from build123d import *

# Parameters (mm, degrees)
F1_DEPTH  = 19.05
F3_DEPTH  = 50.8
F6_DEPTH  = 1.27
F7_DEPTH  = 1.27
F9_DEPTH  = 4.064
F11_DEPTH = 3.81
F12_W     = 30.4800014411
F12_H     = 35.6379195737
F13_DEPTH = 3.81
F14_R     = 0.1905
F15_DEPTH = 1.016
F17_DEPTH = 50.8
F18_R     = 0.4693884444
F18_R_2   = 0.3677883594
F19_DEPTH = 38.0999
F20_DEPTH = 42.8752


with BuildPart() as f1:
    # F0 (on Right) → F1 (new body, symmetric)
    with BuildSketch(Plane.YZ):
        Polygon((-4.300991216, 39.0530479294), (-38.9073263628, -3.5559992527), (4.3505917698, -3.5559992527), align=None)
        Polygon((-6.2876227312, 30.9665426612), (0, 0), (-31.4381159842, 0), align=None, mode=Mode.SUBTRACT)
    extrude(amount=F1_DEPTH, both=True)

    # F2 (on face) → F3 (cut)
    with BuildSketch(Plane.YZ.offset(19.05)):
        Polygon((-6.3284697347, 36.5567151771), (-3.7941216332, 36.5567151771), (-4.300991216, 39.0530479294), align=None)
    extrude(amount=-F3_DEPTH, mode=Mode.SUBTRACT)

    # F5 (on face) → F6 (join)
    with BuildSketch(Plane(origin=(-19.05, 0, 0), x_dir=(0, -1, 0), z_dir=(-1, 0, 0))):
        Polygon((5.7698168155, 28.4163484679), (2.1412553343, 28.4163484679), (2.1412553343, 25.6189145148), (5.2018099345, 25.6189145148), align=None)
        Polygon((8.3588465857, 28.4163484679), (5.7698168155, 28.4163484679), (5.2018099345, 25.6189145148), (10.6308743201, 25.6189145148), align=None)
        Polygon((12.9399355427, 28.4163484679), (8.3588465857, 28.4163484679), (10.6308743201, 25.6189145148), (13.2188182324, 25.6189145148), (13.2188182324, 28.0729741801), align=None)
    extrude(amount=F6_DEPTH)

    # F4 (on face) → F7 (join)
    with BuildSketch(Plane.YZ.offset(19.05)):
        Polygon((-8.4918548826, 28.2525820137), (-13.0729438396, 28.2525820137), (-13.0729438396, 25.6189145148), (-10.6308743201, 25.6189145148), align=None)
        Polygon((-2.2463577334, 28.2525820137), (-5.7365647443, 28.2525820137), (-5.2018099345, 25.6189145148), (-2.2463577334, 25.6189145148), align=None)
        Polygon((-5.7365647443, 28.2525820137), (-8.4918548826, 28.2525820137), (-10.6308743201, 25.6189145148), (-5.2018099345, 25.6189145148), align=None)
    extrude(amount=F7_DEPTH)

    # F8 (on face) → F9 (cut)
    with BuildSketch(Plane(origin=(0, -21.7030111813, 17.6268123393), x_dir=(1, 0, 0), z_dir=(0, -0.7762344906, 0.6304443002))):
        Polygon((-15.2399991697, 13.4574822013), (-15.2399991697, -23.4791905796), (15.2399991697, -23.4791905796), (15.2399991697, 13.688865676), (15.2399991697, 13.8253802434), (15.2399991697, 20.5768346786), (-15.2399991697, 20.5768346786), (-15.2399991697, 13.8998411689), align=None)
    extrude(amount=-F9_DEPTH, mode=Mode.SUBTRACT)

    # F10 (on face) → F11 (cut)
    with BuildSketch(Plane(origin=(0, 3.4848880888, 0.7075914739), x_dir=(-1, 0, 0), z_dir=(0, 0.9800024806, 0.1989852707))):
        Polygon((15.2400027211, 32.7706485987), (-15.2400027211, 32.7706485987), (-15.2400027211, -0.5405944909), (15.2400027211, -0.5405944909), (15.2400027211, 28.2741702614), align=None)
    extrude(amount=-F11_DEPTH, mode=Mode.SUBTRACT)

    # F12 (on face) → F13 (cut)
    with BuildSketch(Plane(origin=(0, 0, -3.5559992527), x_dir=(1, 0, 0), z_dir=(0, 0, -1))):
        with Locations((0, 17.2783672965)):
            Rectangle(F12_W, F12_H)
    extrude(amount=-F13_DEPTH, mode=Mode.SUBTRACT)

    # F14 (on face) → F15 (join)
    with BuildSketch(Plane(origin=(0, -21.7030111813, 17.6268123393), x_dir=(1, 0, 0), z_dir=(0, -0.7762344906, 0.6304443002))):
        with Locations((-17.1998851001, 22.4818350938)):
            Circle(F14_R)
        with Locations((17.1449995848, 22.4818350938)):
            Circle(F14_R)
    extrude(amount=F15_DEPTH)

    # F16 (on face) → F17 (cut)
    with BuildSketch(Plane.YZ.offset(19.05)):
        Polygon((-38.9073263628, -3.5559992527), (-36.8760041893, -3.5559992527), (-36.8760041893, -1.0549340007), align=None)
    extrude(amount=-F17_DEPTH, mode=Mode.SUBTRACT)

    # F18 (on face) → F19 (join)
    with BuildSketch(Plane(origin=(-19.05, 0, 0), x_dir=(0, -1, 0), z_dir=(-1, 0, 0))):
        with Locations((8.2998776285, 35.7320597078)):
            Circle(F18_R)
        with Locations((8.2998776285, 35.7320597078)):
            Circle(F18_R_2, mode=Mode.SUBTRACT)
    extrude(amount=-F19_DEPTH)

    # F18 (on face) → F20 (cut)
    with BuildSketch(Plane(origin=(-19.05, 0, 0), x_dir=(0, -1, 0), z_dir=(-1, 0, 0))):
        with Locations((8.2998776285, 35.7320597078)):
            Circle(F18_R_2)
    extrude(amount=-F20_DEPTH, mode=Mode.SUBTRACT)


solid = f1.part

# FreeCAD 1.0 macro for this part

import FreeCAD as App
import Part
import Sketcher
Q = App.Units.Quantity

doc = App.newDocument("Part")
body = doc.addObject("PartDesign::Body", "Body")

sketch1 = body.newObject("Sketcher::SketchObject", "Sketch")
sketch1.AttachmentSupport = (doc.getObject("YZ_Plane"), [""])
sketch1.MapMode = "FlatFace"
sketch1.addGeometry(Part.LineSegment(App.Vector(-4, 39, 0), App.Vector(-39, -4, 0)), False)
sketch1.addGeometry(Part.LineSegment(App.Vector(-39, -4, 0), App.Vector(4, -4, 0)), False)
sketch1.addGeometry(Part.LineSegment(App.Vector(4, -4, 0), App.Vector(-4, 39, 0)), False)
sketch1.addGeometry(Part.LineSegment(App.Vector(-31, 0, 0), App.Vector(-6, 31, 0)), False)
sketch1.addGeometry(Part.LineSegment(App.Vector(-6, 31, 0), App.Vector(0, 0, 0)), False)
sketch1.addGeometry(Part.LineSegment(App.Vector(0, 0, 0), App.Vector(-31, 0, 0)), False)
sketch1.addConstraint(Sketcher.Constraint("Coincident", 0, 2, 1, 1))
sketch1.addConstraint(Sketcher.Constraint("Coincident", 1, 2, 2, 1))
sketch1.addConstraint(Sketcher.Constraint("Coincident", 2, 2, 0, 1))
sketch1.addConstraint(Sketcher.Constraint("Coincident", 3, 2, 4, 1))
sketch1.addConstraint(Sketcher.Constraint("Coincident", 4, 2, 5, 1))
sketch1.addConstraint(Sketcher.Constraint("Coincident", 5, 2, 3, 1))
sketch1.addConstraint(Sketcher.Constraint("Horizontal", 1))
sketch1.addConstraint(Sketcher.Constraint("Horizontal", 5))
sketch1.addConstraint(Sketcher.Constraint("Coincident", 4, 2, -1, 1))
sketch1.addConstraint(Sketcher.Constraint("Parallel", 0, 3))
sketch1.addConstraint(Sketcher.Constraint("Parallel", 2, 4))
sketch1.addConstraint(Sketcher.Constraint("DistanceY", 0, 2, -1, 1, Q("0.14 in")))
sketch1.addConstraint(Sketcher.Constraint("DistanceX", 1, 1, 1, 2, Q("43.257918 mm")))
sketch1.addConstraint(Sketcher.Constraint("Distance", 0, Q("54.891979 mm")))
sketch1.addConstraint(Sketcher.Constraint("Distance", 2, Q("43.47851 mm")))
sketch1.addConstraint(Sketcher.Constraint("DistanceX", 5, 2, 5, 1, Q("31.438116 mm")))
sketch1.addConstraint(Sketcher.Constraint("DistanceX", -1, 1, 1, 2, Q("4.350592 mm")))
pad1 = body.newObject("PartDesign::Pad", "Pad")
pad1.Profile = sketch1
pad1.Length = Q("1.5 in")
pad1.Midplane = True

sketch2 = body.newObject("Sketcher::SketchObject", "Sketch001")
sketch2.AttachmentSupport = (doc.getObject("YZ_Plane"), [""])
sketch2.MapMode = "FlatFace"
sketch2.AttachmentOffset = App.Placement(App.Vector(0, 0, 0.75 * 25.4), App.Rotation())
sketch2.addGeometry(Part.LineSegment(App.Vector(-6.3, 36.6, 0), App.Vector(-3.8, 36.6, 0)), False)
sketch2.addGeometry(Part.LineSegment(App.Vector(-3.8, 36.6, 0), App.Vector(-4.3, 39.1, 0)), False)
sketch2.addGeometry(Part.LineSegment(App.Vector(-4.3, 39.1, 0), App.Vector(-6.3, 36.6, 0)), False)
sketch2.addConstraint(Sketcher.Constraint("Coincident", 0, 2, 1, 1))
sketch2.addConstraint(Sketcher.Constraint("Coincident", 1, 2, 2, 1))
sketch2.addConstraint(Sketcher.Constraint("Coincident", 2, 2, 0, 1))
sketch2.addConstraint(Sketcher.Constraint("Horizontal", 0))
sketch2.addConstraint(Sketcher.Constraint("DistanceX", 0, 1, 0, 2, Q("2.534348 mm")))
sketch2.addConstraint(Sketcher.Constraint("Distance", 1, Q("2.547272 mm")))
sketch2.addConstraint(Sketcher.Constraint("Distance", 2, Q("3.215952 mm")))
sketch2.addConstraint(Sketcher.Constraint("DistanceX", 0, 2, -1, 1, Q("3.794122 mm")))
sketch2.addConstraint(Sketcher.Constraint("DistanceY", -1, 1, 0, 2, Q("36.556715 mm")))
pocket1 = body.newObject("PartDesign::Pocket", "Pocket")
pocket1.Profile = sketch2
pocket1.Length = Q("2 in")

sketch3 = body.newObject("Sketcher::SketchObject", "Sketch002")
sketch3.AttachmentSupport = (doc.getObject("YZ_Plane"), [""])
sketch3.MapMode = "FlatFace"
sketch3.AttachmentOffset = App.Placement(App.Vector(0, 0, -0.75 * 25.4), App.Rotation())
sketch3.addGeometry(Part.LineSegment(App.Vector(-2.14, 28.42, 0), App.Vector(-2.14, 25.62, 0)), False)
sketch3.addGeometry(Part.LineSegment(App.Vector(-2.14, 25.62, 0), App.Vector(-13.22, 25.62, 0)), False)
sketch3.addGeometry(Part.LineSegment(App.Vector(-13.22, 25.62, 0), App.Vector(-13.22, 28.07, 0)), False)
sketch3.addGeometry(Part.LineSegment(App.Vector(-13.22, 28.07, 0), App.Vector(-12.94, 28.42, 0)), False)
sketch3.addGeometry(Part.LineSegment(App.Vector(-12.94, 28.42, 0), App.Vector(-2.14, 28.42, 0)), False)
sketch3.addConstraint(Sketcher.Constraint("Coincident", 0, 2, 1, 1))
sketch3.addConstraint(Sketcher.Constraint("Coincident", 1, 2, 2, 1))
sketch3.addConstraint(Sketcher.Constraint("Coincident", 2, 2, 3, 1))
sketch3.addConstraint(Sketcher.Constraint("Coincident", 3, 2, 4, 1))
sketch3.addConstraint(Sketcher.Constraint("Coincident", 4, 2, 0, 1))
sketch3.addConstraint(Sketcher.Constraint("Vertical", 0))
sketch3.addConstraint(Sketcher.Constraint("Horizontal", 1))
sketch3.addConstraint(Sketcher.Constraint("Vertical", 2))
sketch3.addConstraint(Sketcher.Constraint("Horizontal", 4))
sketch3.addConstraint(Sketcher.Constraint("DistanceX", 4, 1, 4, 2, Q("10.79868 mm")))
sketch3.addConstraint(Sketcher.Constraint("DistanceY", 2, 1, 2, 2, Q("2.45406 mm")))
sketch3.addConstraint(Sketcher.Constraint("Distance", 3, Q("0.442359 mm")))
sketch3.addConstraint(Sketcher.Constraint("DistanceX", 1, 2, 1, 1, Q("11.077563 mm")))
sketch3.addConstraint(Sketcher.Constraint("DistanceX", 1, 2, -1, 1, Q("13.218818 mm")))
sketch3.addConstraint(Sketcher.Constraint("DistanceY", -1, 1, 3, 2, Q("28.416348 mm")))
pad2 = body.newObject("PartDesign::Pad", "Pad001")
pad2.Profile = sketch3
pad2.Length = Q("0.05 in")
pad2.Reversed = True

sketch4 = body.newObject("Sketcher::SketchObject", "Sketch003")
sketch4.AttachmentSupport = (doc.getObject("YZ_Plane"), [""])
sketch4.MapMode = "FlatFace"
sketch4.AttachmentOffset = App.Placement(App.Vector(0, 0, 0.75 * 25.4), App.Rotation())
sketch4.addGeometry(Part.LineSegment(App.Vector(-13.1, 28.3, 0), App.Vector(-13.1, 25.6, 0)), False)
sketch4.addGeometry(Part.LineSegment(App.Vector(-13.1, 25.6, 0), App.Vector(-2.2, 25.6, 0)), False)
sketch4.addGeometry(Part.LineSegment(App.Vector(-2.2, 25.6, 0), App.Vector(-2.2, 28.3, 0)), False)
sketch4.addGeometry(Part.LineSegment(App.Vector(-2.2, 28.3, 0), App.Vector(-13.1, 28.3, 0)), False)
sketch4.addConstraint(Sketcher.Constraint("Coincident", 0, 2, 1, 1))
sketch4.addConstraint(Sketcher.Constraint("Coincident", 1, 2, 2, 1))
sketch4.addConstraint(Sketcher.Constraint("Coincident", 2, 2, 3, 1))
sketch4.addConstraint(Sketcher.Constraint("Coincident", 3, 2, 0, 1))
sketch4.addConstraint(Sketcher.Constraint("Vertical", 0))
sketch4.addConstraint(Sketcher.Constraint("Horizontal", 1))
sketch4.addConstraint(Sketcher.Constraint("Vertical", 2))
sketch4.addConstraint(Sketcher.Constraint("Horizontal", 3))
sketch4.addConstraint(Sketcher.Constraint("DistanceX", 1, 1, 1, 2, Q("10.826586 mm")))
sketch4.addConstraint(Sketcher.Constraint("DistanceY", 0, 2, 0, 1, Q("2.633667 mm")))
sketch4.addConstraint(Sketcher.Constraint("DistanceX", 0, 2, -1, 1, Q("13.072944 mm")))
sketch4.addConstraint(Sketcher.Constraint("DistanceY", -1, 1, 0, 2, Q("25.618915 mm")))
pad3 = body.newObject("PartDesign::Pad", "Pad002")
pad3.Profile = sketch4
pad3.Length = Q("0.05 in")

sketch5 = body.newObject("Sketcher::SketchObject", "Sketch004")
sketch5.Placement = App.Placement(App.Vector(0, -21.703011, 17.626812), App.Rotation(App.Vector(1, 0, 0), App.Vector(0, 0.6304443, 0.776234491), App.Vector(0, -0.776234491, 0.6304443), "ZXY"))
sketch5.addGeometry(Part.LineSegment(App.Vector(-15, -23, 0), App.Vector(15, -23, 0)), False)
sketch5.addGeometry(Part.LineSegment(App.Vector(15, -23, 0), App.Vector(15, 21, 0)), False)
sketch5.addGeometry(Part.LineSegment(App.Vector(15, 21, 0), App.Vector(-15, 21, 0)), False)
sketch5.addGeometry(Part.LineSegment(App.Vector(-15, 21, 0), App.Vector(-15, -23, 0)), False)
sketch5.addConstraint(Sketcher.Constraint("Coincident", 0, 2, 1, 1))
sketch5.addConstraint(Sketcher.Constraint("Coincident", 1, 2, 2, 1))
sketch5.addConstraint(Sketcher.Constraint("Coincident", 2, 2, 3, 1))
sketch5.addConstraint(Sketcher.Constraint("Coincident", 3, 2, 0, 1))
sketch5.addConstraint(Sketcher.Constraint("Horizontal", 0))
sketch5.addConstraint(Sketcher.Constraint("Vertical", 1))
sketch5.addConstraint(Sketcher.Constraint("Horizontal", 2))
sketch5.addConstraint(Sketcher.Constraint("Vertical", 3))
sketch5.addConstraint(Sketcher.Constraint("DistanceX", 0, 1, 0, 2, Q("1.1999999 in")))
sketch5.addConstraint(Sketcher.Constraint("DistanceX", -1, 1, 0, 2, Q("0.6 in")))
sketch5.addConstraint(Sketcher.Constraint("DistanceY", 1, 1, 1, 2, Q("44.056025 mm")))
sketch5.addConstraint(Sketcher.Constraint("DistanceY", 0, 2, -1, 1, Q("23.479191 mm")))
pocket2 = body.newObject("PartDesign::Pocket", "Pocket001")
pocket2.Profile = sketch5
pocket2.Length = Q("0.16 in")

sketch6 = body.newObject("Sketcher::SketchObject", "Sketch005")
sketch6.Placement = App.Placement(App.Vector(0, 3.484888, 0.707591), App.Rotation(App.Vector(-1, 0, 0), App.Vector(0, -0.198985271, 0.980002481), App.Vector(0, 0.980002481, 0.198985271), "ZXY"))
sketch6.addGeometry(Part.LineSegment(App.Vector(15, 33, 0), App.Vector(-15, 33, 0)), False)
sketch6.addGeometry(Part.LineSegment(App.Vector(-15, 33, 0), App.Vector(-15, -1, 0)), False)
sketch6.addGeometry(Part.LineSegment(App.Vector(-15, -1, 0), App.Vector(15, -1, 0)), False)
sketch6.addGeometry(Part.LineSegment(App.Vector(15, -1, 0), App.Vector(15, 33, 0)), False)
sketch6.addConstraint(Sketcher.Constraint("Coincident", 0, 2, 1, 1))
sketch6.addConstraint(Sketcher.Constraint("Coincident", 1, 2, 2, 1))
sketch6.addConstraint(Sketcher.Constraint("Coincident", 2, 2, 3, 1))
sketch6.addConstraint(Sketcher.Constraint("Coincident", 3, 2, 0, 1))
sketch6.addConstraint(Sketcher.Constraint("Horizontal", 0))
sketch6.addConstraint(Sketcher.Constraint("Vertical", 1))
sketch6.addConstraint(Sketcher.Constraint("Horizontal", 2))
sketch6.addConstraint(Sketcher.Constraint("Vertical", 3))
sketch6.addConstraint(Sketcher.Constraint("DistanceX", 0, 2, -1, 1, Q("0.6000001 in")))
sketch6.addConstraint(Sketcher.Constraint("DistanceX", -1, 1, 2, 2, Q("0.6000001 in")))
sketch6.addConstraint(Sketcher.Constraint("DistanceY", 1, 2, 1, 1, Q("33.311243 mm")))
sketch6.addConstraint(Sketcher.Constraint("DistanceY", -1, 1, 0, 2, Q("32.770649 mm")))
pocket3 = body.newObject("PartDesign::Pocket", "Pocket002")
pocket3.Profile = sketch6
pocket3.Length = Q("0.15 in")

sketch7 = body.newObject("Sketcher::SketchObject", "Sketch006")
sketch7.AttachmentSupport = (doc.getObject("XY_Plane"), [""])
sketch7.MapMode = "FlatFace"
sketch7.AttachmentOffset = App.Placement(App.Vector(0, 0, -0.14 * 25.4), App.Rotation())
sketch7.addGeometry(Part.LineSegment(App.Vector(-15, -35, 0), App.Vector(-15, 1, 0)), False)
sketch7.addGeometry(Part.LineSegment(App.Vector(-15, 1, 0), App.Vector(15, 1, 0)), False)
sketch7.addGeometry(Part.LineSegment(App.Vector(15, 1, 0), App.Vector(15, -35, 0)), False)
sketch7.addGeometry(Part.LineSegment(App.Vector(15, -35, 0), App.Vector(-15, -35, 0)), False)
sketch7.addConstraint(Sketcher.Constraint("Coincident", 0, 2, 1, 1))
sketch7.addConstraint(Sketcher.Constraint("Coincident", 1, 2, 2, 1))
sketch7.addConstraint(Sketcher.Constraint("Coincident", 2, 2, 3, 1))
sketch7.addConstraint(Sketcher.Constraint("Coincident", 3, 2, 0, 1))
sketch7.addConstraint(Sketcher.Constraint("Vertical", 0))
sketch7.addConstraint(Sketcher.Constraint("Horizontal", 1))
sketch7.addConstraint(Sketcher.Constraint("Vertical", 2))
sketch7.addConstraint(Sketcher.Constraint("Horizontal", 3))
sketch7.addConstraint(Sketcher.Constraint("DistanceX", 1, 1, 1, 2, Q("1.2000001 in")))
sketch7.addConstraint(Sketcher.Constraint("DistanceX", 0, 2, -1, 1, Q("0.6 in")))
sketch7.addConstraint(Sketcher.Constraint("DistanceY", 0, 1, 0, 2, Q("35.63792 mm")))
sketch7.addConstraint(Sketcher.Constraint("DistanceY", -1, 1, 0, 2, Q("0.540592 mm")))
pocket4 = body.newObject("PartDesign::Pocket", "Pocket003")
pocket4.Profile = sketch7
pocket4.Length = Q("0.15 in")
pocket4.Reversed = True

sketch8 = body.newObject("Sketcher::SketchObject", "Sketch007")
sketch8.Placement = App.Placement(App.Vector(0, -21.703011, 17.626812), App.Rotation(App.Vector(1, 0, 0), App.Vector(0, 0.6304443, 0.776234491), App.Vector(0, -0.776234491, 0.6304443), "ZXY"))
sketch8.addGeometry(Part.Circle(App.Vector(-17.2, 22.48, 0), App.Vector(0, 0, 1), 0.19), False)
sketch8.addGeometry(Part.Circle(App.Vector(17.14, 22.48, 0), App.Vector(0, 0, 1), 0.19), False)
sketch8.addConstraint(Sketcher.Constraint("Equal", 0, 1))
sketch8.addConstraint(Sketcher.Constraint("Horizontal", 0, 3, 1, 3))
sketch8.addConstraint(Sketcher.Constraint("Diameter", 0, Q("0.015 in")))
sketch8.addConstraint(Sketcher.Constraint("DistanceX", -1, 1, 1, 3, Q("0.675 in")))
sketch8.addConstraint(Sketcher.Constraint("DistanceX", 0, 3, -1, 1, Q("17.199885 mm")))
sketch8.addConstraint(Sketcher.Constraint("DistanceY", -1, 1, 0, 3, Q("22.481835 mm")))
pad4 = body.newObject("PartDesign::Pad", "Pad003")
pad4.Profile = sketch8
pad4.Length = Q("0.04 in")

sketch9 = body.newObject("Sketcher::SketchObject", "Sketch008")
sketch9.AttachmentSupport = (doc.getObject("YZ_Plane"), [""])
sketch9.MapMode = "FlatFace"
sketch9.AttachmentOffset = App.Placement(App.Vector(0, 0, 0.75 * 25.4), App.Rotation())
sketch9.addGeometry(Part.LineSegment(App.Vector(-38.9, -3.6, 0), App.Vector(-36.9, -3.6, 0)), False)
sketch9.addGeometry(Part.LineSegment(App.Vector(-36.9, -3.6, 0), App.Vector(-36.9, -1.1, 0)), False)
sketch9.addGeometry(Part.LineSegment(App.Vector(-36.9, -1.1, 0), App.Vector(-38.9, -3.6, 0)), False)
sketch9.addConstraint(Sketcher.Constraint("Coincident", 0, 2, 1, 1))
sketch9.addConstraint(Sketcher.Constraint("Coincident", 1, 2, 2, 1))
sketch9.addConstraint(Sketcher.Constraint("Coincident", 2, 2, 0, 1))
sketch9.addConstraint(Sketcher.Constraint("Horizontal", 0))
sketch9.addConstraint(Sketcher.Constraint("Vertical", 1))
sketch9.addConstraint(Sketcher.Constraint("DistanceY", 0, 2, -1, 1, Q("0.14 in")))
sketch9.addConstraint(Sketcher.Constraint("Distance", 2, Q("3.222049 mm")))
sketch9.addConstraint(Sketcher.Constraint("DistanceX", 0, 1, 0, 2, Q("2.031322 mm")))
sketch9.addConstraint(Sketcher.Constraint("DistanceX", 0, 2, -1, 1, Q("36.876004 mm")))
pocket5 = body.newObject("PartDesign::Pocket", "Pocket004")
pocket5.Profile = sketch9
pocket5.Length = Q("2 in")

sketch10 = body.newObject("Sketcher::SketchObject", "Sketch009")
sketch10.AttachmentSupport = (doc.getObject("YZ_Plane"), [""])
sketch10.MapMode = "FlatFace"
sketch10.AttachmentOffset = App.Placement(App.Vector(0, 0, -0.75 * 25.4), App.Rotation())
sketch10.addGeometry(Part.Circle(App.Vector(-8.3, 35.73, 0), App.Vector(0, 0, 1), 0.47), False)
sketch10.addGeometry(Part.Circle(App.Vector(-8.3, 35.73, 0), App.Vector(0, 0, 1), 0.37), False)
sketch10.addConstraint(Sketcher.Constraint("Coincident", 1, 3, 0, 3))
sketch10.addConstraint(Sketcher.Constraint("Diameter", 0, Q("0.938777 mm")))
sketch10.addConstraint(Sketcher.Constraint("Diameter", 1, Q("0.735577 mm")))
sketch10.addConstraint(Sketcher.Constraint("DistanceY", -1, 1, 0, 3, Q("35.73206 mm")))
sketch10.addConstraint(Sketcher.Constraint("DistanceX", 0, 3, -1, 1, Q("8.299878 mm")))
pad5 = body.newObject("PartDesign::Pad", "Pad004")
pad5.Profile = sketch10
pad5.Length = 38.0999

sketch11 = body.newObject("Sketcher::SketchObject", "Sketch010")
sketch11.AttachmentSupport = (doc.getObject("YZ_Plane"), [""])
sketch11.MapMode = "FlatFace"
sketch11.AttachmentOffset = App.Placement(App.Vector(0, 0, -0.75 * 25.4), App.Rotation())
sketch11.addGeometry(Part.Circle(App.Vector(-8.3, 35.73, 0), App.Vector(0, 0, 1), 0.37), False)
sketch11.addConstraint(Sketcher.Constraint("Diameter", 0, Q("0.735577 mm")))
sketch11.addConstraint(Sketcher.Constraint("DistanceY", -1, 1, 0, 3, Q("35.73206 mm")))
sketch11.addConstraint(Sketcher.Constraint("DistanceX", 0, 3, -1, 1, Q("8.299878 mm")))
pocket6 = body.newObject("PartDesign::Pocket", "Pocket005")
pocket6.Profile = sketch11
pocket6.Length = Q("1.688 in")
pocket6.Reversed = True

doc.recompute()
